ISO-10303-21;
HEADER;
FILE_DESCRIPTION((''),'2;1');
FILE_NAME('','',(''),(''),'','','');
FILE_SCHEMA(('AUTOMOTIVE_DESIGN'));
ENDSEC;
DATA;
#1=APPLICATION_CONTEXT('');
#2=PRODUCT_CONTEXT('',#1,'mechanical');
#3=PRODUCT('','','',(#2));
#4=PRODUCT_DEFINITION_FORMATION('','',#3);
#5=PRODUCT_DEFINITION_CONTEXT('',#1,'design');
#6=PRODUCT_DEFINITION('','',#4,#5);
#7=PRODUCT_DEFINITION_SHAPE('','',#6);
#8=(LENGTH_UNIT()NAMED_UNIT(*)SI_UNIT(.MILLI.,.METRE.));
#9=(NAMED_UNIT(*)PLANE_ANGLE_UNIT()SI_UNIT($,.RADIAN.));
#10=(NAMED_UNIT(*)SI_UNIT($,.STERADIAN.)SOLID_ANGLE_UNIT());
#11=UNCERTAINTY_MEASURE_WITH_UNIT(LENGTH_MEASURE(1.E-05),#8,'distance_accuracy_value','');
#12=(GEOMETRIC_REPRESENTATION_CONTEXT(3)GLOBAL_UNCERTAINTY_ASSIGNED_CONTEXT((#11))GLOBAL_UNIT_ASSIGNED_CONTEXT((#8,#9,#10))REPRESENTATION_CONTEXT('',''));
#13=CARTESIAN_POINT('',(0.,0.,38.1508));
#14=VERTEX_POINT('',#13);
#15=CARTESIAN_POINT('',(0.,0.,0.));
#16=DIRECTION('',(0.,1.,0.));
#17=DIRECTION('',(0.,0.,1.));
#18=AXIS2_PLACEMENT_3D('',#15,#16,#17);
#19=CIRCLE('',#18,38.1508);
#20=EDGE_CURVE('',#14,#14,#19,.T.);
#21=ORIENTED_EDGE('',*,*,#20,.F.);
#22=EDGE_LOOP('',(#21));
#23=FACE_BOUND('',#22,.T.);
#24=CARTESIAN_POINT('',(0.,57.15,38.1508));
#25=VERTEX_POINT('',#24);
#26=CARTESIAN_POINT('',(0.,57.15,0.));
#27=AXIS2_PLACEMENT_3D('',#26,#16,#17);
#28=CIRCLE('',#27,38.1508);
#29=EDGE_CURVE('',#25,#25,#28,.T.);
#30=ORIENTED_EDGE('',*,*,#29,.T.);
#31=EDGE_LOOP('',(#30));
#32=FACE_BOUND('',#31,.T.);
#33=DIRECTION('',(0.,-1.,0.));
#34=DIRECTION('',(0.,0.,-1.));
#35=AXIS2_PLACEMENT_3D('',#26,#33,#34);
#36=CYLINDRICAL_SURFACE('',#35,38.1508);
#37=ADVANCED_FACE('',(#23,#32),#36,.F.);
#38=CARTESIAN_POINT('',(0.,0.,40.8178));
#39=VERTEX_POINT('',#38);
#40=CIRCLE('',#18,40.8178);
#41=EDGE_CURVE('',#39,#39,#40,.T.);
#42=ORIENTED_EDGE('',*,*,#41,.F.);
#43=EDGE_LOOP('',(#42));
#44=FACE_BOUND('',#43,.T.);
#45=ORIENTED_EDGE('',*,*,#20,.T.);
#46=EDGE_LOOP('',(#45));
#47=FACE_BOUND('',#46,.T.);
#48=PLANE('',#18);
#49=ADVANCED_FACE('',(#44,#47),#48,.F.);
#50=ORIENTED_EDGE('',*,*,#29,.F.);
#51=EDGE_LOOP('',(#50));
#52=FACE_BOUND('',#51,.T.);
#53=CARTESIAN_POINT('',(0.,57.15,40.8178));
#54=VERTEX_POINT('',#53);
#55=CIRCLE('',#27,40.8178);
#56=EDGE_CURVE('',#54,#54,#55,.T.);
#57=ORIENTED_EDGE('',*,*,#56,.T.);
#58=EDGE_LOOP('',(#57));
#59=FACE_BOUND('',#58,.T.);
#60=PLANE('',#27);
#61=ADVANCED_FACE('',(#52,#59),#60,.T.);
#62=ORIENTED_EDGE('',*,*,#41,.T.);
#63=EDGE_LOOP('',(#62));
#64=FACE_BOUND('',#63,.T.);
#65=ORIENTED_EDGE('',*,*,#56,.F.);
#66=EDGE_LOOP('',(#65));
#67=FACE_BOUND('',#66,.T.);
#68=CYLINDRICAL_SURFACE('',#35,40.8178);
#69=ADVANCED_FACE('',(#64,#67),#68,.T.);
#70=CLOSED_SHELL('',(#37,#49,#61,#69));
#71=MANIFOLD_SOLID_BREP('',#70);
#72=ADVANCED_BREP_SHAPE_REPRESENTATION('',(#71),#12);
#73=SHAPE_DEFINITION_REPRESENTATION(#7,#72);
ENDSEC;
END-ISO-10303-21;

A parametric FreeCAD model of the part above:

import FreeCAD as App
import Part
import Sketcher

V = App.Vector
Q = App.Units.Quantity

doc = App.newDocument("Part")
body = doc.addObject("PartDesign::Body", "Body")

sketch1 = body.newObject("Sketcher::SketchObject", "Sketch")
sketch1.AttachmentSupport = (doc.getObject("XZ_Plane"), [""])
sketch1.MapMode = "FlatFace"
sketch1.addGeometry([
    Part.Circle(V(0, 0, 0), V(0, 0, 1), 40.8178),
    Part.Circle(V(0, 0, 0), V(0, 0, 1), 38.1508),
], False)
sketch1.addConstraint([
    Sketcher.Constraint("Coincident", 0, 3, -1, 1),
    Sketcher.Constraint("Coincident", 1, 3, -1, 1),
    Sketcher.Constraint("Diameter", 0, Q("3.214 in")),
    Sketcher.Constraint("Diameter", 1, Q("3.004 in")),
])
pad1 = body.newObject("PartDesign::Pad", "Pad")
pad1.Profile = sketch1
pad1.Length = Q("2.25 in")
pad1.Reversed = True

doc.recompute()
